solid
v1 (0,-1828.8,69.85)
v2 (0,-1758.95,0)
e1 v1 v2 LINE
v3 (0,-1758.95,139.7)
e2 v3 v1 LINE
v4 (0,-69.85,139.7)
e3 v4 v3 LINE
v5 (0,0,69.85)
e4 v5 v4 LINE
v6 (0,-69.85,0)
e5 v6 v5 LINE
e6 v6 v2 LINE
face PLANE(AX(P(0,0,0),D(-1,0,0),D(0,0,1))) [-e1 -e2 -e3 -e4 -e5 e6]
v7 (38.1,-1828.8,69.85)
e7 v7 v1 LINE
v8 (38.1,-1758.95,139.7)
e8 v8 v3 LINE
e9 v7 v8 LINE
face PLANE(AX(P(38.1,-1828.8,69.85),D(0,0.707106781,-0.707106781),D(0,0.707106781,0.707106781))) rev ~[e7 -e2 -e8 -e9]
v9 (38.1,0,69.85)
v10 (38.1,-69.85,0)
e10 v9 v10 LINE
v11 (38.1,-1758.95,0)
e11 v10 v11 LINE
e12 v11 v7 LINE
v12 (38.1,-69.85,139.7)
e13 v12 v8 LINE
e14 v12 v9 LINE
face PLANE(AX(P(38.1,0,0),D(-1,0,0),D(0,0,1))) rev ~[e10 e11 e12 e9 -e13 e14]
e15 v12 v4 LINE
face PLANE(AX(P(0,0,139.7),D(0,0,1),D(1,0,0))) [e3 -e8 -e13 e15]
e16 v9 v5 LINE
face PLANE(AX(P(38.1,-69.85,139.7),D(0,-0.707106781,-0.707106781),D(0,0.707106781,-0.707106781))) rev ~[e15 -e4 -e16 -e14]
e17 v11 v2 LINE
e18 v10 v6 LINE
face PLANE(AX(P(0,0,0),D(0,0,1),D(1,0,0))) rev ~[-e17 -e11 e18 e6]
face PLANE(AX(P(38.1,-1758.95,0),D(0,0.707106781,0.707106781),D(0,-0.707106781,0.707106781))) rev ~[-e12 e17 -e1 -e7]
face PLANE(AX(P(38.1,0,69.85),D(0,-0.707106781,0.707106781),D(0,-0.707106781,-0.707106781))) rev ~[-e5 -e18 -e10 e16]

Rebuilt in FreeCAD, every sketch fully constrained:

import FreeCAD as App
import Part
import Sketcher
from FreeCAD import Vector
Q = App.Units.Quantity

doc = App.newDocument("Part")
body = doc.addObject("PartDesign::Body", "Body")

# Sketch on XZ plane
sketch1 = body.newObject("Sketcher::SketchObject", "Sketch")
sketch1.AttachmentSupport = (doc.getObject("XZ_Plane"), [""])
sketch1.MapMode = "FlatFace"
sketch1.addGeometry(Part.LineSegment(Vector(0, 139.7, 0), Vector(0, 0, 0)), False)
sketch1.addGeometry(Part.LineSegment(Vector(0, 0, 0), Vector(38.1, 0, 0)), False)
sketch1.addGeometry(Part.LineSegment(Vector(38.1, 0, 0), Vector(38.1, 139.7, 0)), False)
sketch1.addGeometry(Part.LineSegment(Vector(38.1, 139.7, 0), Vector(0, 139.7, 0)), False)
sketch1.addConstraint(Sketcher.Constraint("Coincident", 0, 2, 1, 1))
sketch1.addConstraint(Sketcher.Constraint("Coincident", 1, 2, 2, 1))
sketch1.addConstraint(Sketcher.Constraint("Coincident", 2, 2, 3, 1))
sketch1.addConstraint(Sketcher.Constraint("Coincident", 3, 2, 0, 1))
sketch1.addConstraint(Sketcher.Constraint("Vertical", 0))
sketch1.addConstraint(Sketcher.Constraint("Horizontal", 1))
sketch1.addConstraint(Sketcher.Constraint("Vertical", 2))
sketch1.addConstraint(Sketcher.Constraint("Horizontal", 3))
sketch1.addConstraint(Sketcher.Constraint("Coincident", 0, 2, -1, 1))
sketch1.addConstraint(Sketcher.Constraint("DistanceX", 1, 1, 1, 2, Q("1.5 in")))
sketch1.addConstraint(Sketcher.Constraint("DistanceY", 0, 2, 0, 1, Q("5.5 in")))
pad1 = body.newObject("PartDesign::Pad", "Pad")
pad1.Profile = sketch1
pad1.Length = Q("72 in")

# Sketch on YZ plane
sketch2 = body.newObject("Sketcher::SketchObject", "Sketch001")
sketch2.AttachmentSupport = (doc.getObject("YZ_Plane"), [""])
sketch2.MapMode = "FlatFace"
sketch2.AttachmentOffset = App.Placement(Vector(0, 0, 1.5 * 25.4), App.Rotation())
sketch2.addGeometry(Part.LineSegment(Vector(-1758.95, 0, 0), Vector(-1828.8, 69.85, 0)), False)
sketch2.addGeometry(Part.LineSegment(Vector(-1828.8, 69.85, 0), Vector(-1828.8, 0, 0)), False)
sketch2.addGeometry(Part.LineSegment(Vector(-1828.8, 0, 0), Vector(-1758.95, 0, 0)), False)
sketch2.addGeometry(Part.LineSegment(Vector(-1828.8, 139.7, 0), Vector(-1828.8, 69.85, 0)), False)
sketch2.addGeometry(Part.LineSegment(Vector(-1828.8, 69.85, 0), Vector(-1758.95, 139.7, 0)), False)
sketch2.addGeometry(Part.LineSegment(Vector(-1758.95, 139.7, 0), Vector(-1828.8, 139.7, 0)), False)
sketch2.addGeometry(Part.LineSegment(Vector(0, 0, 0), Vector(0, 69.85, 0)), False)
sketch2.addGeometry(Part.LineSegment(Vector(0, 69.85, 0), Vector(-69.85, 0, 0)), False)
sketch2.addGeometry(Part.LineSegment(Vector(-69.85, 0, 0), Vector(0, 0, 0)), False)
sketch2.addGeometry(Part.LineSegment(Vector(0, 69.85, 0), Vector(0, 139.7, 0)), False)
sketch2.addGeometry(Part.LineSegment(Vector(0, 139.7, 0), Vector(-69.85, 139.7, 0)), False)
sketch2.addGeometry(Part.LineSegment(Vector(-69.85, 139.7, 0), Vector(0, 69.85, 0)), False)
sketch2.addConstraint(Sketcher.Constraint("Coincident", 0, 2, 1, 1))
sketch2.addConstraint(Sketcher.Constraint("Coincident", 1, 2, 2, 1))
sketch2.addConstraint(Sketcher.Constraint("Coincident", 2, 2, 0, 1))
sketch2.addConstraint(Sketcher.Constraint("Coincident", 3, 2, 4, 1))
sketch2.addConstraint(Sketcher.Constraint("Coincident", 4, 2, 5, 1))
sketch2.addConstraint(Sketcher.Constraint("Coincident", 5, 2, 3, 1))
sketch2.addConstraint(Sketcher.Constraint("Coincident", 6, 2, 7, 1))
sketch2.addConstraint(Sketcher.Constraint("Coincident", 7, 2, 8, 1))
sketch2.addConstraint(Sketcher.Constraint("Coincident", 8, 2, 6, 1))
sketch2.addConstraint(Sketcher.Constraint("Coincident", 9, 2, 10, 1))
sketch2.addConstraint(Sketcher.Constraint("Coincident", 10, 2, 11, 1))
sketch2.addConstraint(Sketcher.Constraint("Coincident", 11, 2, 9, 1))
sketch2.addConstraint(Sketcher.Constraint("Vertical", 1))
sketch2.addConstraint(Sketcher.Constraint("Horizontal", 2))
sketch2.addConstraint(Sketcher.Constraint("Vertical", 3))
sketch2.addConstraint(Sketcher.Constraint("Horizontal", 5))
sketch2.addConstraint(Sketcher.Constraint("Vertical", 6))
sketch2.addConstraint(Sketcher.Constraint("Horizontal", 8))
sketch2.addConstraint(Sketcher.Constraint("Vertical", 9))
sketch2.addConstraint(Sketcher.Constraint("Horizontal", 10))
sketch2.addConstraint(Sketcher.Constraint("Coincident", 8, 2, -1, 1))
sketch2.addConstraint(Sketcher.Constraint("Coincident", 3, 2, 0, 2))
sketch2.addConstraint(Sketcher.Constraint("Coincident", 11, 2, 6, 2))
sketch2.addConstraint(Sketcher.Constraint("PointOnObject", 1, 2, -1))
sketch2.addConstraint(Sketcher.Constraint("Perpendicular", 0, 4))
sketch2.addConstraint(Sketcher.Constraint("Parallel", 4, 7))
sketch2.addConstraint(Sketcher.Constraint("Perpendicular", 7, 11))
sketch2.addConstraint(Sketcher.Constraint("Horizontal", 3, 2, 6, 2))
sketch2.addConstraint(Sketcher.Constraint("Horizontal", 5, 2, 9, 2))
sketch2.addConstraint(Sketcher.Constraint("Vertical", 2, 2, 4, 2))
sketch2.addConstraint(Sketcher.Constraint("Vertical", 7, 2, 10, 2))
sketch2.addConstraint(Sketcher.Constraint("DistanceX", 0, 2, -1, 1, Q("72 in")))
sketch2.addConstraint(Sketcher.Constraint("DistanceX", 2, 1, 2, 2, Q("2.75 in")))
pocket1 = body.newObject("PartDesign::Pocket", "Pocket")
pocket1.Profile = sketch2
pocket1.Type = "ThroughAll"

doc.recompute()
